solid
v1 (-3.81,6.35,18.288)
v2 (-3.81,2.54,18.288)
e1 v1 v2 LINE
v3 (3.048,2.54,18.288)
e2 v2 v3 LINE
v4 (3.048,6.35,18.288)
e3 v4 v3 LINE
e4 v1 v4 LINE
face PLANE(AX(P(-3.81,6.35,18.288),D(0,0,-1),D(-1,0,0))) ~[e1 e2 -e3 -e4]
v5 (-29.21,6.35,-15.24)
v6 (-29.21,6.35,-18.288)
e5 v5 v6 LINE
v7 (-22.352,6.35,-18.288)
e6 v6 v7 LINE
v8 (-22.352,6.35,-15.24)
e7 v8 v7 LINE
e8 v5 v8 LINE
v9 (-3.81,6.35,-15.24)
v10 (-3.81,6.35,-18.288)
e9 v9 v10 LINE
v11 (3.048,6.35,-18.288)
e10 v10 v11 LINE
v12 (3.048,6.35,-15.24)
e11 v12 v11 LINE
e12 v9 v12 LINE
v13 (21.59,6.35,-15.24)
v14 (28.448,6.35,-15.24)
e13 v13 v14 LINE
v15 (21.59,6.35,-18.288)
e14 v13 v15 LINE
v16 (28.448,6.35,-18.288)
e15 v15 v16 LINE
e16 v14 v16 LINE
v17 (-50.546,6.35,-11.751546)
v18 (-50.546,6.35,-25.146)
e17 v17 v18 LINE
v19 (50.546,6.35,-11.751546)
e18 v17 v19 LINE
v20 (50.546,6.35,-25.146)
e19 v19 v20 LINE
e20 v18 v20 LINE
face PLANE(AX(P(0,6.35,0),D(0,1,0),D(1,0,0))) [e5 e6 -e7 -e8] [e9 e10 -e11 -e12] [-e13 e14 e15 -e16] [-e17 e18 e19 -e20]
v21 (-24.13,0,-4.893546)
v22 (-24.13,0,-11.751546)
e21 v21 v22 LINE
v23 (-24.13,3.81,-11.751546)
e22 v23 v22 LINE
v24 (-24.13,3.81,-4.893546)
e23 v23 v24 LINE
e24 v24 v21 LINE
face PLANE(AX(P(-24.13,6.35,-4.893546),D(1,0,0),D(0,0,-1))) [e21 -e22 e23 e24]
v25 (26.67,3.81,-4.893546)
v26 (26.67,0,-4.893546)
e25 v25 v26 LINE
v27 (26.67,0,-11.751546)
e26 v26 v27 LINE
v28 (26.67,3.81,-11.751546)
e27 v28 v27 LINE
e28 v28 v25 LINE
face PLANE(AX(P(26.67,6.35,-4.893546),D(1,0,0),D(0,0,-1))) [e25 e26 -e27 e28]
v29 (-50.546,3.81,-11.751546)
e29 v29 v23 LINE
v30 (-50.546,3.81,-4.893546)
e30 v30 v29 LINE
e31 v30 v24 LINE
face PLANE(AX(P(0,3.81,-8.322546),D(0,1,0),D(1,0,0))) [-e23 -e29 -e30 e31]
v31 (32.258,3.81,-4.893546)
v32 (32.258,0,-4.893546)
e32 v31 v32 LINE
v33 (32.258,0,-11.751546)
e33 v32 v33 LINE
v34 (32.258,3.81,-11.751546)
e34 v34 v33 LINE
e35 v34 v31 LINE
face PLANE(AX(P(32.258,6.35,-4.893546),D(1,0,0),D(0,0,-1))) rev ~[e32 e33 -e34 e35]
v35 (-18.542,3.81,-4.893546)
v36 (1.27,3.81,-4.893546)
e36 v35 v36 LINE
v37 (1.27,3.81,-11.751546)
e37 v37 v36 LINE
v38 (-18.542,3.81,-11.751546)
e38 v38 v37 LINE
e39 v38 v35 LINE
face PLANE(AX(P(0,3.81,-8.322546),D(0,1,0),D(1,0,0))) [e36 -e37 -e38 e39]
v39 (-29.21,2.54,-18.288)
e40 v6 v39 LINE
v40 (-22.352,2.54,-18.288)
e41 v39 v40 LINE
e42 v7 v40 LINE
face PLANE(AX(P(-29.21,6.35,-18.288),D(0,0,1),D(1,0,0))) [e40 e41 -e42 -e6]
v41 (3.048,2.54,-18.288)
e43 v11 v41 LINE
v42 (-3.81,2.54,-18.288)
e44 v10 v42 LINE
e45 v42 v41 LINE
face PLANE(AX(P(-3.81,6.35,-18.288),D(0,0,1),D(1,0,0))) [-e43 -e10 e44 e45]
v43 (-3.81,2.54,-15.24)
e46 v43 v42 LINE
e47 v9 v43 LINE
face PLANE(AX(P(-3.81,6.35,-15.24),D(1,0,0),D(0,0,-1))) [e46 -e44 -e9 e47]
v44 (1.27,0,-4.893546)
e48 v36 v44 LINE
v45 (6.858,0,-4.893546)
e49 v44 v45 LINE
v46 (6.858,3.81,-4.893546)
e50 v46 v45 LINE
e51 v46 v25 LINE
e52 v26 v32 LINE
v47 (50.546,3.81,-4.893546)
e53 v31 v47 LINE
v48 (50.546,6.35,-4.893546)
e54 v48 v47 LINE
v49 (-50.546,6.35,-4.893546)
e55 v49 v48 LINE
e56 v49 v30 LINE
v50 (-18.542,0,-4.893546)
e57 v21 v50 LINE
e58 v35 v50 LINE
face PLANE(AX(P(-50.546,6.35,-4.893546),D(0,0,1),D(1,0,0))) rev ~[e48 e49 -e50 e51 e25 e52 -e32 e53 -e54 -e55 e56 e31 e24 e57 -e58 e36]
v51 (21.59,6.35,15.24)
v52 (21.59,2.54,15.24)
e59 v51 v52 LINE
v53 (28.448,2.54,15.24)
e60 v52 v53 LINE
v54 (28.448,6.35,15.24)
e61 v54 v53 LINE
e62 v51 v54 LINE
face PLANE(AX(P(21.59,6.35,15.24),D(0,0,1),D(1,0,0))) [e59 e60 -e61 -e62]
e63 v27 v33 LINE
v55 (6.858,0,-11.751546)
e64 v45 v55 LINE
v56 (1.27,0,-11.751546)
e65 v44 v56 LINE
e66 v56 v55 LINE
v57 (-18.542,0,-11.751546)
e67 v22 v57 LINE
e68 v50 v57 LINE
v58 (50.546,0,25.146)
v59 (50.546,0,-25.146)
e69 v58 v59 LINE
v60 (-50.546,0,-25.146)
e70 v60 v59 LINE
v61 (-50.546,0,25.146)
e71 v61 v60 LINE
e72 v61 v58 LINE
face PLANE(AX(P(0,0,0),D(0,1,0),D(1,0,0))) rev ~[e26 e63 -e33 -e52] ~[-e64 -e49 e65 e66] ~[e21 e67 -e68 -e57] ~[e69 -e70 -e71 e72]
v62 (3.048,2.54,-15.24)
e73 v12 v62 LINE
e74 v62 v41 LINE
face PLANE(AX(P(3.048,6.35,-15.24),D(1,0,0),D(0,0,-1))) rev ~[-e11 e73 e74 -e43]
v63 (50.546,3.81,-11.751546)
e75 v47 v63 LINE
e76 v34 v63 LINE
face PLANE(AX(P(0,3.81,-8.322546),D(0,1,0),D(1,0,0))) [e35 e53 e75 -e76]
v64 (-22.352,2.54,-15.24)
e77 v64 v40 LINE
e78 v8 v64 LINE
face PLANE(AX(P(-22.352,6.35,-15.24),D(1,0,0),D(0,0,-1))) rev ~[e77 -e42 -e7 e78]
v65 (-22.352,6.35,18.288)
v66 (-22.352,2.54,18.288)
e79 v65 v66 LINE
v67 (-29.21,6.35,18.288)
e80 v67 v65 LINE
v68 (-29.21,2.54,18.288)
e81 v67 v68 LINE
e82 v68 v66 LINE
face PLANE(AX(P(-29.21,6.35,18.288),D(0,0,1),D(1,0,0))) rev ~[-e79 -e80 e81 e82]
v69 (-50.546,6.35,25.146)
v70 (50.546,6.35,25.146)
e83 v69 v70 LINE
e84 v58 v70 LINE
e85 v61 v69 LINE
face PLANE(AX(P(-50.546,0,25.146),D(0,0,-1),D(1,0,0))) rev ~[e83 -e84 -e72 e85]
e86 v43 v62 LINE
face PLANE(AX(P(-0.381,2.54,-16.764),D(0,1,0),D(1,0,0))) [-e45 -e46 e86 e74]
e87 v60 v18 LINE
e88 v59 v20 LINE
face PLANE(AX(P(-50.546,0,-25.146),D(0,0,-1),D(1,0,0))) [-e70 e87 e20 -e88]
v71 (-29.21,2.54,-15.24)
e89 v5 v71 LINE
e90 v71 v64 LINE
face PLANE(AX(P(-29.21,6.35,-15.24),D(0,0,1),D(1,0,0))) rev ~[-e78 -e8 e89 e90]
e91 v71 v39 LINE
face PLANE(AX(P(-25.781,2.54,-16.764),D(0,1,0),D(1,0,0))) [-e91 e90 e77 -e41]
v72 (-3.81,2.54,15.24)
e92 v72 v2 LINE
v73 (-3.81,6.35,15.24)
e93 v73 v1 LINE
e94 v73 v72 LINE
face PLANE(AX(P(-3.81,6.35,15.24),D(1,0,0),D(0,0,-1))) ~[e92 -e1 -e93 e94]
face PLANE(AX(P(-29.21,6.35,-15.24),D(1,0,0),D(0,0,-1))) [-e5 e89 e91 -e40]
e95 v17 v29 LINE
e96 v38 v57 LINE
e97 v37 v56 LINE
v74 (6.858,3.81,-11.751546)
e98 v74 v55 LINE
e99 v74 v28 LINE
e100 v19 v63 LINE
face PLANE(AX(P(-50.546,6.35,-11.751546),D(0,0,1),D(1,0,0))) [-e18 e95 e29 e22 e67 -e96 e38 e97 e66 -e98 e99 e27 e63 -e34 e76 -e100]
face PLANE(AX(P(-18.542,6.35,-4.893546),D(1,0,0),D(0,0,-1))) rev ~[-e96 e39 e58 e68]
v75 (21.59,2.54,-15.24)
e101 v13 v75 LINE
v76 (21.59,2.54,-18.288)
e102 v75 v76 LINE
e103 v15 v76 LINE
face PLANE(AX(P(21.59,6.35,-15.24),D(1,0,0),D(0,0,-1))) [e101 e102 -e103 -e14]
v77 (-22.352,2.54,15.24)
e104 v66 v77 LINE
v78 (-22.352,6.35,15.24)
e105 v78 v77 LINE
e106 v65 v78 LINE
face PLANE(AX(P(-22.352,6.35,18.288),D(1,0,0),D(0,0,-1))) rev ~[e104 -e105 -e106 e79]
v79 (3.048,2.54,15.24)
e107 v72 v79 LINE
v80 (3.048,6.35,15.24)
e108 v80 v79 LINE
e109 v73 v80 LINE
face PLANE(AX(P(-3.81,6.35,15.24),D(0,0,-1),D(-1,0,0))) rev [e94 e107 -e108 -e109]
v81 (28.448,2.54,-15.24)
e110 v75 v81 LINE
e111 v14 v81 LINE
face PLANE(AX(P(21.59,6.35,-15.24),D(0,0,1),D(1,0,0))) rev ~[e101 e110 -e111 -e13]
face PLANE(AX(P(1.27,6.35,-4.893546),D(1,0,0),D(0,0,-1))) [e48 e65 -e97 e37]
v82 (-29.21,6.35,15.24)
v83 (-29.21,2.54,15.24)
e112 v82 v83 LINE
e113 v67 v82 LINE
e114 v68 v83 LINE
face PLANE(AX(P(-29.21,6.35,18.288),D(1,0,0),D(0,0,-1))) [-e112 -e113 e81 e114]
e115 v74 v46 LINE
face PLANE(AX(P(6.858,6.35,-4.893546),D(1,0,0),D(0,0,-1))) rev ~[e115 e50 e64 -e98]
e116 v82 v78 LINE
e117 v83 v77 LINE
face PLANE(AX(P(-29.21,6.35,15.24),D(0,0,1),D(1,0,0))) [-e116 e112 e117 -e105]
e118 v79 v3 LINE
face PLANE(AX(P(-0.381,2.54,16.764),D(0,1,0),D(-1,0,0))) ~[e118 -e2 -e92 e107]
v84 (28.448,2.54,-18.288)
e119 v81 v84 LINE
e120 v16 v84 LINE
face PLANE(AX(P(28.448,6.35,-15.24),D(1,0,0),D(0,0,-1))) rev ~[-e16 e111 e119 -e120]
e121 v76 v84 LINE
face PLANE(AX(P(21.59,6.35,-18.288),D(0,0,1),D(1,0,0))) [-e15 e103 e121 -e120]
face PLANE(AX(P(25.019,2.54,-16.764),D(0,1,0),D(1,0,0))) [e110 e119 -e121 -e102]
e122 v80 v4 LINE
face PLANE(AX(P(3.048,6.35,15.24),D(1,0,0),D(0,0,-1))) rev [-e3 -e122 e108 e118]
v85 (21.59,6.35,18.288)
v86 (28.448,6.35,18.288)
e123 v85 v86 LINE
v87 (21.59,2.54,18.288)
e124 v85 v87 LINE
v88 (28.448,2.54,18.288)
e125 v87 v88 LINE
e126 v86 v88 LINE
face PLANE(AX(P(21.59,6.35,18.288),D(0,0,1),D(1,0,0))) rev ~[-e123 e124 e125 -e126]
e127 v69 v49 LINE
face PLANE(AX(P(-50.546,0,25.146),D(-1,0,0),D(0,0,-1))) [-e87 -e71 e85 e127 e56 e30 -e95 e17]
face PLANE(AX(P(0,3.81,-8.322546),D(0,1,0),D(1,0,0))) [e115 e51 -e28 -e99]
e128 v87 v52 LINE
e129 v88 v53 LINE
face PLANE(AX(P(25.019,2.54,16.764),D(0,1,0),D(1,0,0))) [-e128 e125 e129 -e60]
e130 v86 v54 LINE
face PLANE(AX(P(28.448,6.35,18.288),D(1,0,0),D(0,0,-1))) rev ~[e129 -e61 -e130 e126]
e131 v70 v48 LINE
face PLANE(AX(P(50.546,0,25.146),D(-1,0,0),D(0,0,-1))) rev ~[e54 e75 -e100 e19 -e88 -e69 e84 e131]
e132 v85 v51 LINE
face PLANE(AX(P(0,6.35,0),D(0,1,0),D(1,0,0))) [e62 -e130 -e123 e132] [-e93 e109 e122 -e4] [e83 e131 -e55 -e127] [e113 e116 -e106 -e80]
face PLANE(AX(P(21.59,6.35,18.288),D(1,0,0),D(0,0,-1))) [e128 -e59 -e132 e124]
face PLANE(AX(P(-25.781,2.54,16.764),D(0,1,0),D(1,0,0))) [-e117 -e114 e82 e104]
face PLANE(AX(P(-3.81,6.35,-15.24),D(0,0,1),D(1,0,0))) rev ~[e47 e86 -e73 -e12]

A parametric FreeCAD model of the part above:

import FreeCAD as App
import Part
import Sketcher
Q = App.Units.Quantity


def add_polygon(sketch, points):
    """Adds a closed chain of lines whose ends are joined by coincident constraints."""
    first, n = sketch.GeometryCount, len(points)
    for a, b in zip(points, points[1:] + points[:1]):
        sketch.addGeometry(Part.LineSegment(App.Vector(*a, 0), App.Vector(*b, 0)), False)
    for i in range(n):
        sketch.addConstraint(Sketcher.Constraint("Coincident", first + i, 2, first + (i + 1) % n, 1))

doc = App.newDocument("Part")
body = doc.addObject("PartDesign::Body", "Body")

# Sketch on XZ plane
sketch1 = body.newObject("Sketcher::SketchObject", "Sketch")
sketch1.AttachmentSupport = (doc.getObject("XZ_Plane"), [""])
sketch1.MapMode = "FlatFace"
add_polygon(sketch1, [(-51, -25), (-51, 25), (51, 25), (51, -25)])  # lines 0-3
sketch1.addConstraint([
    Sketcher.Constraint("Vertical", 0),
    Sketcher.Constraint("Horizontal", 1),
    Sketcher.Constraint("Vertical", 2),
    Sketcher.Constraint("Horizontal", 3),
    Sketcher.Constraint("Symmetric", 0, 2, 2, 2, -1, 1),
    Sketcher.Constraint("DistanceX", 1, 1, 1, 2, Q("3.98 in")),
    Sketcher.Constraint("DistanceY", 0, 1, 0, 2, Q("1.98 in")),
])
pad1 = body.newObject("PartDesign::Pad", "Pad")
pad1.Profile = sketch1
pad1.Length = Q("0.25 in")
pad1.Reversed = True

# Sketch on XZ plane
sketch2 = body.newObject("Sketcher::SketchObject", "Sketch001")
sketch2.AttachmentSupport = (doc.getObject("XZ_Plane"), [""])
sketch2.MapMode = "FlatFace"
sketch2.AttachmentOffset = App.Placement(App.Vector(0, 0, -0.25 * 25.4), App.Rotation())
add_polygon(sketch2, [(1, -12), (1, -5), (7, -5), (7, -12)])  # lines 0-3
sketch2.addConstraint([
    Sketcher.Constraint("Vertical", 0),
    Sketcher.Constraint("Horizontal", 1),
    Sketcher.Constraint("Vertical", 2),
    Sketcher.Constraint("Horizontal", 3),
    Sketcher.Constraint("DistanceX", 1, 1, 1, 2, Q("0.22 in")),
    Sketcher.Constraint("DistanceY", 0, 1, 0, 2, Q("0.27 in")),
    Sketcher.Constraint("DistanceX", -1, 1, 0, 2, Q("0.05 in")),
    Sketcher.Constraint("DistanceY", 0, 2, -1, 1, Q("4.893546 mm")),
])
pocket1 = body.newObject("PartDesign::Pocket", "Pocket")
pocket1.Profile = sketch2
pocket1.Type = "ThroughAll"
pocket1.Reversed = True

# Sketch on XZ plane
sketch3 = body.newObject("Sketcher::SketchObject", "Sketch002")
sketch3.AttachmentSupport = (doc.getObject("XZ_Plane"), [""])
sketch3.MapMode = "FlatFace"
sketch3.AttachmentOffset = App.Placement(App.Vector(0, 0, -0.25 * 25.4), App.Rotation())
add_polygon(sketch3, [(-3.8, -18.3), (-3.8, -15.2), (3, -15.2), (3, -18.3)])  # lines 0-3
sketch3.addConstraint([
    Sketcher.Constraint("Vertical", 0),
    Sketcher.Constraint("Horizontal", 1),
    Sketcher.Constraint("Vertical", 2),
    Sketcher.Constraint("Horizontal", 3),
    Sketcher.Constraint("DistanceX", 1, 1, 1, 2, Q("0.27 in")),
    Sketcher.Constraint("DistanceY", 0, 1, 0, 2, Q("0.12 in")),
    Sketcher.Constraint("DistanceY", 0, 2, -1, 1, Q("0.6 in")),
    Sketcher.Constraint("DistanceX", 0, 2, -1, 1, Q("0.15 in")),
])
pocket2 = body.newObject("PartDesign::Pocket", "Pocket001")
pocket2.Profile = sketch3
pocket2.Length = Q("0.15 in")
pocket2.Reversed = True
doc.recompute()

mirrored = body.newObject("PartDesign::Mirrored", "Mirrored")
mirrored.Originals = [pocket2]
mirrored.MirrorPlane = (doc.getObject("XY_Plane"), [""])
body.Tip = mirrored
doc.recompute()

linearpattern = body.newObject("PartDesign::LinearPattern", "LinearPattern")
linearpattern.Originals = [pocket1, pocket2]
linearpattern.Direction = (doc.getObject("X_Axis"), [""])
linearpattern.Mode = "offset"
linearpattern.Offset = Q("1 in")
linearpattern.Occurrences = 2
linearpattern.Reversed = True
body.Tip = linearpattern

# Sketch on XZ plane
sketch4 = body.newObject("Sketcher::SketchObject", "Sketch003")
sketch4.AttachmentSupport = (doc.getObject("XZ_Plane"), [""])
sketch4.MapMode = "FlatFace"
sketch4.AttachmentOffset = App.Placement(App.Vector(0, 0, -0.25 * 25.4), App.Rotation())
add_polygon(sketch4, [(-29.2, 15.2), (-29.2, 18.3), (-22.4, 18.3), (-22.4, 15.2)])  # lines 0-3
sketch4.addConstraint([
    Sketcher.Constraint("Vertical", 0),
    Sketcher.Constraint("Horizontal", 1),
    Sketcher.Constraint("Vertical", 2),
    Sketcher.Constraint("Horizontal", 3),
    Sketcher.Constraint("DistanceX", 1, 1, 1, 2, Q("0.27 in")),
    Sketcher.Constraint("DistanceY", 0, 1, 0, 2, Q("0.12 in")),
    Sketcher.Constraint("DistanceY", -1, 1, 2, 2, Q("0.6 in")),
    Sketcher.Constraint("DistanceX", 0, 2, -1, 1, Q("1.15 in")),
])
pocket3 = body.newObject("PartDesign::Pocket", "Pocket002")
pocket3.Profile = sketch4
pocket3.Length = Q("0.15 in")
pocket3.Reversed = True
doc.recompute()

linearpattern2 = body.newObject("PartDesign::LinearPattern", "LinearPattern001")
linearpattern2.Originals = [pocket1, pocket2]
linearpattern2.Direction = (doc.getObject("X_Axis"), [""])
linearpattern2.Mode = "offset"
linearpattern2.Offset = Q("1 in")
linearpattern2.Occurrences = 2
body.Tip = linearpattern2

# Sketch on XZ plane
sketch5 = body.newObject("Sketcher::SketchObject", "Sketch004")
sketch5.AttachmentSupport = (doc.getObject("XZ_Plane"), [""])
sketch5.MapMode = "FlatFace"
sketch5.AttachmentOffset = App.Placement(App.Vector(0, 0, -0.25 * 25.4), App.Rotation())
add_polygon(sketch5, [(21.6, 15.2), (21.6, 18.3), (28.4, 18.3), (28.4, 15.2)])  # lines 0-3
sketch5.addConstraint([
    Sketcher.Constraint("Vertical", 0),
    Sketcher.Constraint("Horizontal", 1),
    Sketcher.Constraint("Vertical", 2),
    Sketcher.Constraint("Horizontal", 3),
    Sketcher.Constraint("DistanceX", 1, 1, 1, 2, Q("0.27 in")),
    Sketcher.Constraint("DistanceY", 0, 1, 0, 2, Q("0.12 in")),
    Sketcher.Constraint("DistanceY", -1, 1, 2, 2, Q("0.6 in")),
    Sketcher.Constraint("DistanceX", -1, 1, 0, 2, Q("0.85 in")),
])
pocket4 = body.newObject("PartDesign::Pocket", "Pocket003")
pocket4.Profile = sketch5
pocket4.Length = Q("0.15 in")
pocket4.Reversed = True

# Sketch on XZ plane
sketch6 = body.newObject("Sketcher::SketchObject", "Sketch005")
sketch6.AttachmentSupport = (doc.getObject("XZ_Plane"), [""])
sketch6.MapMode = "FlatFace"
sketch6.AttachmentOffset = App.Placement(App.Vector(0, 0, -0.25 * 25.4), App.Rotation())
add_polygon(sketch6, [(-51, -12), (-51, -5), (51, -5), (51, -12)])  # lines 0-3
sketch6.addConstraint([
    Sketcher.Constraint("Vertical", 0),
    Sketcher.Constraint("Horizontal", 1),
    Sketcher.Constraint("Vertical", 2),
    Sketcher.Constraint("Horizontal", 3),
    Sketcher.Constraint("DistanceX", 1, 1, 1, 2, Q("3.98 in")),
    Sketcher.Constraint("DistanceY", 0, 1, 0, 2, Q("0.27 in")),
    Sketcher.Constraint("DistanceX", 0, 2, -1, 1, Q("1.99 in")),
    Sketcher.Constraint("DistanceY", 0, 2, -1, 1, Q("4.893546 mm")),
])
pocket5 = body.newObject("PartDesign::Pocket", "Pocket004")
pocket5.Profile = sketch6
pocket5.Length = Q("0.1 in")
pocket5.Reversed = True

doc.recompute()
